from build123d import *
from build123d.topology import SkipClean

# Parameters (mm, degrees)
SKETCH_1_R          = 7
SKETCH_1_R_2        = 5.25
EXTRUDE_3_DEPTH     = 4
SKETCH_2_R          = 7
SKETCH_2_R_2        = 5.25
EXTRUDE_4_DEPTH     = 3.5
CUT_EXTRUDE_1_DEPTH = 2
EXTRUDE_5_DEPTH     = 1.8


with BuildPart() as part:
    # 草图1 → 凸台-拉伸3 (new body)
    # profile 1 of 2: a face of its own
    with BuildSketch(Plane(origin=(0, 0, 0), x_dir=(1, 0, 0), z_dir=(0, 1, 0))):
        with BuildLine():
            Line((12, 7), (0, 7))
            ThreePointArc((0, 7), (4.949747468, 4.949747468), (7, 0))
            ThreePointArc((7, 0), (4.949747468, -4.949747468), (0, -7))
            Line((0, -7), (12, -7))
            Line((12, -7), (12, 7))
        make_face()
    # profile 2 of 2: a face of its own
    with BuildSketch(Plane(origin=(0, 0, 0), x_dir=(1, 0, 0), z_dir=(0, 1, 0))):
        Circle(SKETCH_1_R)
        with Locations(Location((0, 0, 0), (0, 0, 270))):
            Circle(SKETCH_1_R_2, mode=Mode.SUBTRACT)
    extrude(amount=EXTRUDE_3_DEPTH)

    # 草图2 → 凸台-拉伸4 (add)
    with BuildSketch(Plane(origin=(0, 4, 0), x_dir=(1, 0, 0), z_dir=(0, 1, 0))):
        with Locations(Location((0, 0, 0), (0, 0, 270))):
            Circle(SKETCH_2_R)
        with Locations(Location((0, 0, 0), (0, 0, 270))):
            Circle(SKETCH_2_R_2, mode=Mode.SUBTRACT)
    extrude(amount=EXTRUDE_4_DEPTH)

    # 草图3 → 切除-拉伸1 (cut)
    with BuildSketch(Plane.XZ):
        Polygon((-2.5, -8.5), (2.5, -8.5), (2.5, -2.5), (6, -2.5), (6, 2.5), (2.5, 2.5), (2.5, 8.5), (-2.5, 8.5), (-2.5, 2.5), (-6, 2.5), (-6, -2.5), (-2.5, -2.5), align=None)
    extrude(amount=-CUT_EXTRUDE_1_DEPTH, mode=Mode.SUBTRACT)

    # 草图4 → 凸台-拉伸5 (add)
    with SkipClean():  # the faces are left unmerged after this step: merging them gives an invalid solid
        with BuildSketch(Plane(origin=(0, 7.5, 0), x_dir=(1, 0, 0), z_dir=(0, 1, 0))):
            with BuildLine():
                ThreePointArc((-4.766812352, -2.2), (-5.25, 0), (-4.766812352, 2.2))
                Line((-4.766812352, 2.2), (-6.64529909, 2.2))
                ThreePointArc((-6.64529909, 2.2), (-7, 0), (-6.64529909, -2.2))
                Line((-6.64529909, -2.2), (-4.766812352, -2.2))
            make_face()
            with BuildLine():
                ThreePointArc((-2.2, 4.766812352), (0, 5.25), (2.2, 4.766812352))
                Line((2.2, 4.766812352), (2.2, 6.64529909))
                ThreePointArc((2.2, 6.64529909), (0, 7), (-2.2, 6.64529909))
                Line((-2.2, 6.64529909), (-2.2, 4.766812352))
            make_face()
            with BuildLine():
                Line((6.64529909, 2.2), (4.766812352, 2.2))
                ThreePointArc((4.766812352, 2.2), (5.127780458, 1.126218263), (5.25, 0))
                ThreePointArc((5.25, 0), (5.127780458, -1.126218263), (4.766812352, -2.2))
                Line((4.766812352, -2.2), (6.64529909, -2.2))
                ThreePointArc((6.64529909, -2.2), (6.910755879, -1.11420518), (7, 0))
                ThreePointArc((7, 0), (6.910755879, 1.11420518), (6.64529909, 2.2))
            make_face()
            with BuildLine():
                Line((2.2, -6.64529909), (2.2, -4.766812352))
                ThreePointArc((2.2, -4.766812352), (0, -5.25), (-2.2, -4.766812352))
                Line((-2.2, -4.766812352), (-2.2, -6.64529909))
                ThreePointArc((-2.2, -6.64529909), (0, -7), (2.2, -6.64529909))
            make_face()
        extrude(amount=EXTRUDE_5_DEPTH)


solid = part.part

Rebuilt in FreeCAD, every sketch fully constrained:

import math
import FreeCAD as App
import Part
import Sketcher
from FreeCAD import Vector
Q = App.Units.Quantity


def add_polygon(sketch, points):
    """Adds a closed chain of lines whose ends are joined by coincident constraints."""
    first, n = sketch.GeometryCount, len(points)
    for a, b in zip(points, points[1:] + points[:1]):
        sketch.addGeometry(Part.LineSegment(App.Vector(*a, 0), App.Vector(*b, 0)), False)
    for i in range(n):
        sketch.addConstraint(Sketcher.Constraint("Coincident", first + i, 2, first + (i + 1) % n, 1))

doc = App.newDocument("Part")
params = doc.addObject("Spreadsheet::Sheet", "Params")
for row, (alias, value) in enumerate([
    ("sketch1_radius", "7 mm"),
    ("sketch1_diameter", "10.5 mm"),
    ("sketch1_width", "12 mm"),
    ("pad1_length", "4 mm"),
    ("sketch2_diameter", "14 mm"),
    ("sketch2_diameter2", "10.5 mm"),
    ("pad2_length", "3.5 mm"),
    ("sketch3_width", "5 mm"),
    ("sketch3_height", "6 mm"),
    ("sketch3_width2", "3.5 mm"),
    ("pocket1_length", "2 mm"),
    ("sketch4_radius", "7 mm"),
    ("sketch4_radius2", "5.25 mm"),
    ("pad3_length", "1.8 mm"),
], start=1):
    params.set(f"A{row}", alias)
    params.set(f"B{row}", "=" + value)
    params.setAlias(f"B{row}", alias)

body = doc.addObject("PartDesign::Body", "Body")

sketch1 = doc.addObject("Sketcher::SketchObject", "Sketch")
body.addObject(sketch1)
sketch1.AttachmentSupport = (doc.XZ_Plane, [""])
sketch1.MapMode = "FlatFace"
sketch1.addGeometry([
    Part.LineSegment(Vector(12, -7, 0), Vector(0, -7, 0)),
    Part.ArcOfCircle(Part.Circle(Vector(0, 0, 0), Vector(0, 0, 1), 7), math.radians(90), math.radians(270)),
    Part.LineSegment(Vector(0, 7, 0), Vector(12, 7, 0)),
    Part.LineSegment(Vector(12, 7, 0), Vector(12, -7, 0)),
    Part.Circle(Vector(0, 0, 0), Vector(0, 0, 1), 5.25),
], False)
sketch1.addConstraint([
    Sketcher.Constraint("Tangent", 0, 2, 1, 2),
    Sketcher.Constraint("Tangent", 1, 1, 2, 1),
    Sketcher.Constraint("Coincident", 2, 2, 3, 1),
    Sketcher.Constraint("Coincident", 3, 2, 0, 1),
    Sketcher.Constraint("Horizontal", 0),
    Sketcher.Constraint("Horizontal", 2),
    Sketcher.Constraint("Vertical", 3),
    Sketcher.Constraint("Coincident", 1, 3, -1, 1),
    Sketcher.Constraint("Coincident", 4, 3, -1, 1),
    Sketcher.Constraint("Radius", 1, Q("7 mm")),
    Sketcher.Constraint("Diameter", 4, Q("10.5 mm")),
    Sketcher.Constraint("DistanceX", 0, 2, 0, 1, Q("12 mm")),
])
sketch1.setExpression("Constraints[9]", "Params.sketch1_radius")
sketch1.setExpression("Constraints[10]", "Params.sketch1_diameter")
sketch1.setExpression("Constraints[11]", "Params.sketch1_width")
pad1 = doc.addObject("PartDesign::Pad", "Pad")
body.addObject(pad1)
pad1.Profile = sketch1
pad1.setExpression("Length", "Params.pad1_length")
pad1.Reversed = True

sketch2 = doc.addObject("Sketcher::SketchObject", "Sketch001")
body.addObject(sketch2)
sketch2.AttachmentSupport = (doc.XZ_Plane, [""])
sketch2.MapMode = "FlatFace"
sketch2.AttachmentOffset = App.Placement(Vector(0, 0, -4), App.Rotation())
sketch2.addGeometry([
    Part.Circle(Vector(0, 0, 0), Vector(0, 0, 1), 7),
    Part.Circle(Vector(0, 0, 0), Vector(0, 0, 1), 5.25),
], False)
sketch2.addConstraint([
    Sketcher.Constraint("Coincident", 0, 3, -1, 1),
    Sketcher.Constraint("Coincident", 1, 3, -1, 1),
    Sketcher.Constraint("Diameter", 0, Q("14 mm")),
    Sketcher.Constraint("Diameter", 1, Q("10.5 mm")),
])
sketch2.setExpression("Constraints[2]", "Params.sketch2_diameter")
sketch2.setExpression("Constraints[3]", "Params.sketch2_diameter2")
pad2 = doc.addObject("PartDesign::Pad", "Pad001")
body.addObject(pad2)
pad2.Profile = sketch2
pad2.setExpression("Length", "Params.pad2_length")
pad2.Reversed = True

sketch3 = doc.addObject("Sketcher::SketchObject", "Sketch002")
body.addObject(sketch3)
sketch3.AttachmentSupport = (doc.XZ_Plane, [""])
sketch3.MapMode = "FlatFace"
add_polygon(sketch3, [(-2.5, -8.5), (2.5, -8.5), (2.5, -2.5), (6, -2.5), (6, 2.5), (2.5, 2.5), (2.5, 8.5), (-2.5, 8.5), (-2.5, 2.5), (-6, 2.5), (-6, -2.5), (-2.5, -2.5)])
sketch3.addConstraint([
    Sketcher.Constraint("Horizontal", 0),
    Sketcher.Constraint("Vertical", 1),
    Sketcher.Constraint("Horizontal", 2),
    Sketcher.Constraint("Vertical", 3),
    Sketcher.Constraint("Horizontal", 4),
    Sketcher.Constraint("Vertical", 5),
    Sketcher.Constraint("Horizontal", 6),
    Sketcher.Constraint("Vertical", 7),
    Sketcher.Constraint("Horizontal", 8),
    Sketcher.Constraint("Vertical", 9),
    Sketcher.Constraint("Horizontal", 10),
    Sketcher.Constraint("Vertical", 11),
    Sketcher.Constraint("Symmetric", 0, 2, 6, 2, -1, 1),
    Sketcher.Constraint("Symmetric", 2, 2, 8, 2, -1, 1),
    Sketcher.Constraint("Symmetric", 4, 2, 10, 2, -1, 1),
    Sketcher.Constraint("Symmetric", 4, 2, 7, 2, -2),
    Sketcher.Constraint("Equal", 6, 3),
    Sketcher.Constraint("DistanceX", 0, 1, 0, 2, Q("5 mm")),
    Sketcher.Constraint("DistanceY", 1, 1, 1, 2, Q("6 mm")),
    Sketcher.Constraint("DistanceX", 2, 1, 2, 2, Q("3.5 mm")),
])
sketch3.setExpression("Constraints[29]", "Params.sketch3_width")
sketch3.setExpression("Constraints[30]", "Params.sketch3_height")
sketch3.setExpression("Constraints[31]", "Params.sketch3_width2")
pocket1 = doc.addObject("PartDesign::Pocket", "Pocket")
body.addObject(pocket1)
pocket1.Profile = sketch3
pocket1.setExpression("Length", "Params.pocket1_length")

sketch4 = doc.addObject("Sketcher::SketchObject", "Sketch003")
body.addObject(sketch4)
sketch4.AttachmentSupport = (doc.XZ_Plane, [""])
sketch4.MapMode = "FlatFace"
sketch4.AttachmentOffset = App.Placement(Vector(0, 0, -7.5), App.Rotation())
sketch4.addGeometry([
    Part.ArcOfCircle(Part.Circle(Vector(0, 0, 0), Vector(0, 0, 1), 5.25), math.radians(155.225526), math.radians(204.774474)),
    Part.LineSegment(Vector(-4.766812, -2.2, 0), Vector(-6.645299, -2.2, 0)),
    Part.ArcOfCircle(Part.Circle(Vector(0, 0, 0), Vector(0, 0, 1), 7), math.radians(161.682302), math.radians(198.317698)),
    Part.LineSegment(Vector(-6.645299, 2.2, 0), Vector(-4.766812, 2.2, 0)),
    Part.ArcOfCircle(Part.Circle(Vector(0, 0, 0), Vector(0, 0, 1), 5.25), math.radians(-114.774474), math.radians(-65.225526)),
    Part.LineSegment(Vector(2.2, -4.766812, 0), Vector(2.2, -6.645299, 0)),
    Part.ArcOfCircle(Part.Circle(Vector(0, 0, 0), Vector(0, 0, 1), 7), math.radians(-108.317698), math.radians(-71.682302)),
    Part.LineSegment(Vector(-2.2, -6.645299, 0), Vector(-2.2, -4.766812, 0)),
    Part.LineSegment(Vector(6.645299, -2.2, 0), Vector(4.766812, -2.2, 0)),
    Part.ArcOfCircle(Part.Circle(Vector(0, 0, 0), Vector(0, 0, 1), 5.25), math.radians(-24.774474), math.radians(0)),
    Part.ArcOfCircle(Part.Circle(Vector(0, 0, 0), Vector(0, 0, 1), 5.25), math.radians(0), math.radians(24.774474)),
    Part.LineSegment(Vector(4.766812, 2.2, 0), Vector(6.645299, 2.2, 0)),
    Part.ArcOfCircle(Part.Circle(Vector(0, 0, 0), Vector(0, 0, 1), 7), math.radians(0), math.radians(18.317698)),
    Part.ArcOfCircle(Part.Circle(Vector(0, 0, 0), Vector(0, 0, 1), 7), math.radians(-18.317698), math.radians(0)),
    Part.LineSegment(Vector(2.2, 6.645299, 0), Vector(2.2, 4.766812, 0)),
    Part.ArcOfCircle(Part.Circle(Vector(0, 0, 0), Vector(0, 0, 1), 5.25), math.radians(65.225526), math.radians(114.774474)),
    Part.LineSegment(Vector(-2.2, 4.766812, 0), Vector(-2.2, 6.645299, 0)),
    Part.ArcOfCircle(Part.Circle(Vector(0, 0, 0), Vector(0, 0, 1), 7), math.radians(71.682302), math.radians(108.317698)),
], False)
sketch4.addConstraint([
    Sketcher.Constraint("Coincident", 0, 2, 1, 1),
    Sketcher.Constraint("Coincident", 1, 2, 2, 2),
    Sketcher.Constraint("Coincident", 2, 1, 3, 1),
    Sketcher.Constraint("Coincident", 3, 2, 0, 1),
    Sketcher.Constraint("Coincident", 4, 2, 5, 1),
    Sketcher.Constraint("Coincident", 5, 2, 6, 2),
    Sketcher.Constraint("Coincident", 6, 1, 7, 1),
    Sketcher.Constraint("Coincident", 7, 2, 4, 1),
    Sketcher.Constraint("Coincident", 8, 2, 9, 1),
    Sketcher.Constraint("Tangent", 9, 2, 10, 1),
    Sketcher.Constraint("Coincident", 10, 2, 11, 1),
    Sketcher.Constraint("Coincident", 11, 2, 12, 2),
    Sketcher.Constraint("Tangent", 12, 1, 13, 2),
    Sketcher.Constraint("Coincident", 13, 1, 8, 1),
    Sketcher.Constraint("Coincident", 14, 2, 15, 1),
    Sketcher.Constraint("Coincident", 15, 2, 16, 1),
    Sketcher.Constraint("Coincident", 16, 2, 17, 2),
    Sketcher.Constraint("Coincident", 17, 1, 14, 1),
    Sketcher.Constraint("Horizontal", 1),
    Sketcher.Constraint("Horizontal", 3),
    Sketcher.Constraint("Vertical", 5),
    Sketcher.Constraint("Vertical", 7),
    Sketcher.Constraint("Horizontal", 8),
    Sketcher.Constraint("Horizontal", 11),
    Sketcher.Constraint("Vertical", 14),
    Sketcher.Constraint("Vertical", 16),
    Sketcher.Constraint("Coincident", 0, 3, -1, 1),
    Sketcher.Constraint("Coincident", 2, 3, -1, 1),
    Sketcher.Constraint("Coincident", 4, 3, -1, 1),
    Sketcher.Constraint("Coincident", 6, 3, -1, 1),
    Sketcher.Constraint("Coincident", 9, 3, -1, 1),
    Sketcher.Constraint("Coincident", 12, 3, -1, 1),
    Sketcher.Constraint("Coincident", 15, 3, -1, 1),
    Sketcher.Constraint("Coincident", 17, 3, -1, 1),
    Sketcher.Constraint("Equal", 0, 4),
    Sketcher.Constraint("Equal", 2, 6),
    Sketcher.Constraint("Equal", 4, 9),
    Sketcher.Constraint("Equal", 9, 10),
    Sketcher.Constraint("Equal", 6, 12),
    Sketcher.Constraint("Equal", 12, 13),
    Sketcher.Constraint("Equal", 10, 15),
    Sketcher.Constraint("Equal", 13, 17),
    Sketcher.Constraint("PointOnObject", 9, 2, -1),
    Sketcher.Constraint("PointOnObject", 12, 1, -1),
    Sketcher.Constraint("Horizontal", 5, 2, 6, 1),
    Sketcher.Constraint("Horizontal", 1, 2, 8, 2),
    Sketcher.Constraint("Horizontal", 3, 2, 10, 2),
    Sketcher.Constraint("Horizontal", 14, 2, 15, 2),
    Sketcher.Constraint("Vertical", 1, 2, 2, 1),
    Sketcher.Constraint("Vertical", 5, 2, 14, 2),
    Sketcher.Constraint("Equal", 11, 5),
    Sketcher.Constraint("Radius", 2, Q("7 mm")),
    Sketcher.Constraint("Radius", 0, Q("5.25 mm")),
    Sketcher.Constraint("DistanceY", 0, 2, -1, 1, Q("2.2 mm")),
])
sketch4.setExpression("Constraints[51]", "Params.sketch4_radius")
sketch4.setExpression("Constraints[52]", "Params.sketch4_radius2")
pad3 = doc.addObject("PartDesign::Pad", "Pad002")
body.addObject(pad3)
pad3.Profile = sketch4
pad3.setExpression("Length", "Params.pad3_length")
pad3.Reversed = True

doc.recompute()
